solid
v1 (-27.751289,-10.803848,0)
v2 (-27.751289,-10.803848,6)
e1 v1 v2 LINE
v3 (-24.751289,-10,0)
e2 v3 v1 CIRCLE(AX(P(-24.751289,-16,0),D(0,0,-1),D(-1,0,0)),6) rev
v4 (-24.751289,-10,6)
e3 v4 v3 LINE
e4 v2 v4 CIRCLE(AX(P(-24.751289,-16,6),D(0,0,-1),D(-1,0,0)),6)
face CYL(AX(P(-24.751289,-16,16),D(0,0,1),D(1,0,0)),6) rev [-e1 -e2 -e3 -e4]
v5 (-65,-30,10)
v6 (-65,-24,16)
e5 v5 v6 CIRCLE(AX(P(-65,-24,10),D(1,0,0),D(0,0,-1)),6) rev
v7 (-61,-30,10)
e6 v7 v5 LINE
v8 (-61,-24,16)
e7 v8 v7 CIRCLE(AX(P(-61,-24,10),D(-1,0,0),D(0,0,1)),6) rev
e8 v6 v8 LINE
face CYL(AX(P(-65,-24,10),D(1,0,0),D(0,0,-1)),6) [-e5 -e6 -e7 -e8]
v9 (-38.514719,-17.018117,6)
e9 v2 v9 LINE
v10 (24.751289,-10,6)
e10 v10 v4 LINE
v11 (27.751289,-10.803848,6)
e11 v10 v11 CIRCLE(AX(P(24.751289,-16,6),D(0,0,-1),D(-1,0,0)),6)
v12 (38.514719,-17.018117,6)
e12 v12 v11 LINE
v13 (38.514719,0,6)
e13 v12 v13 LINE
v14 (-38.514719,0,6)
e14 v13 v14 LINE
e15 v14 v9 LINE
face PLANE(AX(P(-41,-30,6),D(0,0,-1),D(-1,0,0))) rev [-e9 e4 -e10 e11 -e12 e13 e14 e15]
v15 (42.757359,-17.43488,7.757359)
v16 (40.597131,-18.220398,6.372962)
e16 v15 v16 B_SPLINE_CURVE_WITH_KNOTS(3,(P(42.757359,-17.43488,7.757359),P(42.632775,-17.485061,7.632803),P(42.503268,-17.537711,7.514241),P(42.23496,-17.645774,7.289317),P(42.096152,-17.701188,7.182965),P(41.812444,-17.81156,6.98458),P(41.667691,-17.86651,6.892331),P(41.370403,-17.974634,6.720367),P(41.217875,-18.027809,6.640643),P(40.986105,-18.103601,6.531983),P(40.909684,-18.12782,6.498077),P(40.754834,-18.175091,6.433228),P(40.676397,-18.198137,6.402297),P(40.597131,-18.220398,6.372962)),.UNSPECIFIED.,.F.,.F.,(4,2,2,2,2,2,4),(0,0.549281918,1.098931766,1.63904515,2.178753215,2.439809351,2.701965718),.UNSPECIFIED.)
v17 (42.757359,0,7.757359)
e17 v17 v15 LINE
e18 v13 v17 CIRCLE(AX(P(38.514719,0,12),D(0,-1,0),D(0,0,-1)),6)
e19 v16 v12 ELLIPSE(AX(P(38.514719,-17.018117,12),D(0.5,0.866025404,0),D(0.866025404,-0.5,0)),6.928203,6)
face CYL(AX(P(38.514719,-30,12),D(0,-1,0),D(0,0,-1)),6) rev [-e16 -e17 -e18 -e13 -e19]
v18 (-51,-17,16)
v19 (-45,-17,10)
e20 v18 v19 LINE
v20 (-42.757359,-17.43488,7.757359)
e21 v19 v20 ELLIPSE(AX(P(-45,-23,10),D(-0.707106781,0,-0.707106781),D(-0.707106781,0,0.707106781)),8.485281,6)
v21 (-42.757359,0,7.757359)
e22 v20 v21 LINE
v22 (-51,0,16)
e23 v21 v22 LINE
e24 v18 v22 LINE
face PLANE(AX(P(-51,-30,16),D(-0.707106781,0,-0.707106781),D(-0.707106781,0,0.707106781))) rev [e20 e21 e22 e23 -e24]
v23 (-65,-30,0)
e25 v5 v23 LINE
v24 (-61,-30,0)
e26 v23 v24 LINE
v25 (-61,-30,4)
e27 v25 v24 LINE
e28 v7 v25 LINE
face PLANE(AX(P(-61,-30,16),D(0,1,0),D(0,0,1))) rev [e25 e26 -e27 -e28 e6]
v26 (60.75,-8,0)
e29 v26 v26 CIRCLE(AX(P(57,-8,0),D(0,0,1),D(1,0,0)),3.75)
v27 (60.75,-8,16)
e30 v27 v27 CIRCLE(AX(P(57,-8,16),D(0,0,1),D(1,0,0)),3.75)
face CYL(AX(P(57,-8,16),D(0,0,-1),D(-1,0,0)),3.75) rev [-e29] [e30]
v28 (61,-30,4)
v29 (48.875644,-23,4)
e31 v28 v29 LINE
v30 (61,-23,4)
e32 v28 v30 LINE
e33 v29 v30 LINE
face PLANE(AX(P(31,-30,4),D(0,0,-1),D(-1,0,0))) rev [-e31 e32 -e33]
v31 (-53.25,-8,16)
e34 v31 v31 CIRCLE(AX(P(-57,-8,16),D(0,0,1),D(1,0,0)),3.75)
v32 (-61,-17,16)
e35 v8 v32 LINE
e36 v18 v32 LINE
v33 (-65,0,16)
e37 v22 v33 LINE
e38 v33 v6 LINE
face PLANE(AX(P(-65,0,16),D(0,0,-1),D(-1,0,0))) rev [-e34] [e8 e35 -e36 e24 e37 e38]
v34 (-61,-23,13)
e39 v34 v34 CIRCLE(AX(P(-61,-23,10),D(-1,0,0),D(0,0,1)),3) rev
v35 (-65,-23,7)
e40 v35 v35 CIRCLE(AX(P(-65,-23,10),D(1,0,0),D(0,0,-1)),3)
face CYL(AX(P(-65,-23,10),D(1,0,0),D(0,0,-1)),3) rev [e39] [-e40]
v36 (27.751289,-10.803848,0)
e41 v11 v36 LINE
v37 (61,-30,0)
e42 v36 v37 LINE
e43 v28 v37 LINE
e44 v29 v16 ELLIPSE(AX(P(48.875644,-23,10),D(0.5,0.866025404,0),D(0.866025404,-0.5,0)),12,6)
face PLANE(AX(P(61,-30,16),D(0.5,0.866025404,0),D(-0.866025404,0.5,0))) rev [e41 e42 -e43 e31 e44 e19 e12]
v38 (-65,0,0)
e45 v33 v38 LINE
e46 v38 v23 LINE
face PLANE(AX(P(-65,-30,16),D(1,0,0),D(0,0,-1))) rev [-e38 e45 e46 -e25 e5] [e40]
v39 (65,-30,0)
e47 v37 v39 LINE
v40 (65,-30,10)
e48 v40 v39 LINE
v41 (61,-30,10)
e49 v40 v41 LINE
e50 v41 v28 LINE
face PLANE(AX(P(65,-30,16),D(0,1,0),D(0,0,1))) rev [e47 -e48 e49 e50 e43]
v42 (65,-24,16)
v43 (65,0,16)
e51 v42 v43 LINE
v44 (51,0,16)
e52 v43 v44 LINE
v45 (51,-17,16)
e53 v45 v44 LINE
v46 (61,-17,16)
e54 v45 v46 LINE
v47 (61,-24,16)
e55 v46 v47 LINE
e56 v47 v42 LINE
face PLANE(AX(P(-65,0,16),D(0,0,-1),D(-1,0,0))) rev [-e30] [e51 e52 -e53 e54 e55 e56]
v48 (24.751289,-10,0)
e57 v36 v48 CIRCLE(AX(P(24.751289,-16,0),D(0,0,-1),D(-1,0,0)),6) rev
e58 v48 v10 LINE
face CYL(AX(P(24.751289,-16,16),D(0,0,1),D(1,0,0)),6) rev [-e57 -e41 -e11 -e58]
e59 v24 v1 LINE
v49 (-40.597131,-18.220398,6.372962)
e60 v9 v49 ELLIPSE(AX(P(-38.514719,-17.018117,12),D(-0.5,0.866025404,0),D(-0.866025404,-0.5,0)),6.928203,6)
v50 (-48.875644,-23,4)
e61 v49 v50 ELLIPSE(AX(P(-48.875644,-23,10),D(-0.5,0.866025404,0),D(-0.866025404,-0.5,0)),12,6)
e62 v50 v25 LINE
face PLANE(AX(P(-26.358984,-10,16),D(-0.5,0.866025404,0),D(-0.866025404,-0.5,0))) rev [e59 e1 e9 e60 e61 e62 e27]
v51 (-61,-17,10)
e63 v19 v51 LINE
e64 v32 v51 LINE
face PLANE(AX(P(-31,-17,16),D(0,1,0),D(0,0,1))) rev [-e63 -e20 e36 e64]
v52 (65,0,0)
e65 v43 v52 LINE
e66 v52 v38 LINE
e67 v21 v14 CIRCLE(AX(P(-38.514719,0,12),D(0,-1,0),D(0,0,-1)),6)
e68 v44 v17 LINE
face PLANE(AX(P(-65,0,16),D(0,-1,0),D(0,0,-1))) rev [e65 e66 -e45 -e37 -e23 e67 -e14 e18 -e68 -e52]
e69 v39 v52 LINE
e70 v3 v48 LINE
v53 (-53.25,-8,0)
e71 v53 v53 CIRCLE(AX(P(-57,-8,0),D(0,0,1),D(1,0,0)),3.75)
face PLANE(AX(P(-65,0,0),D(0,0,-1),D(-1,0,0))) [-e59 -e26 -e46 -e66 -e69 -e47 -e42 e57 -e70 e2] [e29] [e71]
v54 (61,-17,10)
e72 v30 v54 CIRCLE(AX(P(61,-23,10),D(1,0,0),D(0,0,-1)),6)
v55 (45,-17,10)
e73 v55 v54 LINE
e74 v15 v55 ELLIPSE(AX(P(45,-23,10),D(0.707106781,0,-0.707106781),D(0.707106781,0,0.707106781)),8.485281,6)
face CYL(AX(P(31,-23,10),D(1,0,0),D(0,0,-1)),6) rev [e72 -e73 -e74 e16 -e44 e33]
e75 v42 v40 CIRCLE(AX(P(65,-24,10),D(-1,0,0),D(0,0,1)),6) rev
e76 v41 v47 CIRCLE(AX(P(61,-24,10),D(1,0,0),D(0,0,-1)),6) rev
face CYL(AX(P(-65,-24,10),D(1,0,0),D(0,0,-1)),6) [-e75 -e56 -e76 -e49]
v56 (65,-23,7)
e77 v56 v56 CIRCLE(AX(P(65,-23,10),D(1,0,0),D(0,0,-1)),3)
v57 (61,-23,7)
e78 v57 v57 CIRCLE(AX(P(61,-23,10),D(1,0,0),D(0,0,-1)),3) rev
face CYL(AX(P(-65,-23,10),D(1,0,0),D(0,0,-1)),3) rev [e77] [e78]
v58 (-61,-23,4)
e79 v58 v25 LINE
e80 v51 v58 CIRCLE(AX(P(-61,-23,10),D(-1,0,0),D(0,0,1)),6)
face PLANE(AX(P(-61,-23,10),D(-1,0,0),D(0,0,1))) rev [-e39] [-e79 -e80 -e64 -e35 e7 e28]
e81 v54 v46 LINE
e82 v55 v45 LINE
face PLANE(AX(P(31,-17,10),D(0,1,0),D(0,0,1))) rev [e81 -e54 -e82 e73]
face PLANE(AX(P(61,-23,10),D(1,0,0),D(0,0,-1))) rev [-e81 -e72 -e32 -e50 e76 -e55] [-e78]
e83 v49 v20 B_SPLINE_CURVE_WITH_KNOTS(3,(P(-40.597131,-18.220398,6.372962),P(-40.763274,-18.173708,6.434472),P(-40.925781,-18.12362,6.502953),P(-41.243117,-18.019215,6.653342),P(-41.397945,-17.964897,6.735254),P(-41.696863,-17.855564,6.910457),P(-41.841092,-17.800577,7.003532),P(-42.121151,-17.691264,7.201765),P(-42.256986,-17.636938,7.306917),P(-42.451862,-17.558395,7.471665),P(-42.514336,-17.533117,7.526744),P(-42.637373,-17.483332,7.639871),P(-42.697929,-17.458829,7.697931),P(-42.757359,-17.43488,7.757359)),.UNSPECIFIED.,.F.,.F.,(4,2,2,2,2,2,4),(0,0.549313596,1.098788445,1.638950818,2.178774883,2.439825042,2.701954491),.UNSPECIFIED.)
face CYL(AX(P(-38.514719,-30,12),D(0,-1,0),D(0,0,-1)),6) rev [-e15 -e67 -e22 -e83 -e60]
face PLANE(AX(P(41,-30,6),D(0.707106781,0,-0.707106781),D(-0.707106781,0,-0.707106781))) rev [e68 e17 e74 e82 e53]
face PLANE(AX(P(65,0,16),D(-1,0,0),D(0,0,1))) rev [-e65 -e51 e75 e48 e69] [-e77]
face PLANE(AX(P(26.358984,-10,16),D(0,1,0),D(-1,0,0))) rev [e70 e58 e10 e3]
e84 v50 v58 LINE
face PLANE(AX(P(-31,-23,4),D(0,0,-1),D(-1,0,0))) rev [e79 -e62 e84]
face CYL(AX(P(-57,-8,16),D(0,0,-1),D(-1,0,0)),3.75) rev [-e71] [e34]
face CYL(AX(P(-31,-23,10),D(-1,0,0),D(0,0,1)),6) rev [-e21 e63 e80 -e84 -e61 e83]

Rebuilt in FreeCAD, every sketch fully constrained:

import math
import FreeCAD as App
import Part
import Sketcher
from FreeCAD import Vector
Q = App.Units.Quantity


def edges_at(feature, points):
    """Names of the edges that pass closest to the given points."""
    edges = feature.Shape.Edges
    near = lambda p: min(range(len(edges)), key=lambda i: edges[i].distToShape(Part.Vertex(*p))[0])
    return sorted({f"Edge{near(p) + 1}" for p in points})


def add_polygon(sketch, points):
    """Adds a closed chain of lines whose ends are joined by coincident constraints."""
    first, n = sketch.GeometryCount, len(points)
    for a, b in zip(points, points[1:] + points[:1]):
        sketch.addGeometry(Part.LineSegment(App.Vector(*a, 0), App.Vector(*b, 0)), False)
    for i in range(n):
        sketch.addConstraint(Sketcher.Constraint("Coincident", first + i, 2, first + (i + 1) % n, 1))

doc = App.newDocument("Part")
params = doc.addObject("Spreadsheet::Sheet", "Params")
for row, (alias, value) in enumerate([
    ("sketch1_diameter", "7.5 mm"),
    ("sketch1_width", "130 mm"),
    ("sketch1_width2", "4 mm"),
    ("sketch1_height", "30 mm"),
    ("sketch1_length", "40 mm"),
    ("pad1_length", "16 mm"),
    ("sketch2_diameter", "6 mm"),
    ("sketch3_width", "102 mm"),
    ("sketch3_width2", "82 mm"),
    ("sketch4_radius", "6 mm"),
    ("sketch4_width", "7 mm"),
    ("sketch4_height", "12 mm"),
    ("pocket3_length", "30 mm"),
    ("sketch5_radius", "6 mm"),
    ("sketch5_width", "13 mm"),
    ("sketch5_height", "6 mm"),
    ("pocket4_length", "30 mm"),
    ("fillet_radius", "6 mm"),
], start=1):
    params.set(f"A{row}", alias)
    params.set(f"B{row}", "=" + value)
    params.setAlias(f"B{row}", alias)

body = doc.addObject("PartDesign::Body", "Body")

# Sketch on XY plane
sketch1 = body.newObject("Sketcher::SketchObject", "Sketch")
sketch1.AttachmentSupport = (doc.getObject("XY_Plane"), [""])
sketch1.MapMode = "FlatFace"
add_polygon(sketch1, [(65, 0), (-65, 0), (-65, -30), (-61, -30), (-26.358984, -10), (26.358984, -10), (61, -30), (65, -30)])  # lines 0-7
sketch1.addGeometry(Part.Circle(Vector(57, -8, 0), Vector(0, 0, 1), 3.75), False)  # 8
sketch1.addGeometry(Part.Circle(Vector(-57, -8, 0), Vector(0, 0, 1), 3.75), False)  # 9
sketch1.addConstraint([
    Sketcher.Constraint("Horizontal", 0),
    Sketcher.Constraint("Vertical", 1),
    Sketcher.Constraint("Horizontal", 2),
    Sketcher.Constraint("Horizontal", 4),
    Sketcher.Constraint("Horizontal", 6),
    Sketcher.Constraint("Vertical", 7),
    Sketcher.Constraint("Equal", 8, 9),
    Sketcher.Constraint("Symmetric", 0, 2, 7, 2, -1, 1),
    Sketcher.Constraint("Symmetric", 8, 3, 9, 3, -2),
    Sketcher.Constraint("Symmetric", 2, 2, 5, 2, -2),
    Sketcher.Constraint("Equal", 3, 5),
    Sketcher.Constraint("Diameter", 8, Q("7.5 mm")),
    Sketcher.Constraint("DistanceX", 0, 2, 0, 1, Q("130 mm")),
    Sketcher.Constraint("DistanceX", 2, 1, 2, 2, Q("4 mm")),
    Sketcher.Constraint("DistanceY", 1, 2, 1, 1, Q("30 mm")),
    Sketcher.Constraint("Angle", 3, Q("30 deg")),
    Sketcher.Constraint("Distance", 3, Q("40 mm")),
    Sketcher.Constraint("DistanceX", -1, 1, 8, 3, Q("57 mm")),
    Sketcher.Constraint("DistanceY", 8, 3, -1, 1, Q("8 mm")),
])
sketch1.setExpression("Constraints[19]", "Params.sketch1_diameter")
sketch1.setExpression("Constraints[20]", "Params.sketch1_width")
sketch1.setExpression("Constraints[21]", "Params.sketch1_width2")
sketch1.setExpression("Constraints[22]", "Params.sketch1_height")
sketch1.setExpression("Constraints[24]", "Params.sketch1_length")
pad1 = body.newObject("PartDesign::Pad", "Pad")
pad1.Profile = sketch1
pad1.setExpression("Length", "Params.pad1_length")

# Sketch on YZ plane
sketch2 = body.newObject("Sketcher::SketchObject", "Sketch001")
sketch2.AttachmentSupport = (doc.getObject("YZ_Plane"), [""])
sketch2.MapMode = "FlatFace"
sketch2.AttachmentOffset = App.Placement(Vector(0, 0, 65), App.Rotation())
sketch2.addGeometry(Part.Circle(Vector(-23, 10, 0), Vector(0, 0, 1), 3), False)
sketch2.addConstraint([
    Sketcher.Constraint("Diameter", 0, Q("6 mm")),
    Sketcher.Constraint("DistanceX", 0, 3, -1, 1, Q("23 mm")),
    Sketcher.Constraint("DistanceY", -1, 1, 0, 3, Q("10 mm")),
])
sketch2.setExpression("Constraints[0]", "Params.sketch2_diameter")
pocket1 = body.newObject("PartDesign::Pocket", "Pocket")
pocket1.Profile = sketch2
pocket1.Type = "ThroughAll"

# Sketch on XZ plane
sketch3 = body.newObject("Sketcher::SketchObject", "Sketch002")
sketch3.AttachmentSupport = (doc.getObject("XZ_Plane"), [""])
sketch3.MapMode = "FlatFace"
add_polygon(sketch3, [(-41, 6), (-51, 16), (51, 16), (41, 6)])  # lines 0-3
sketch3.addConstraint([
    Sketcher.Constraint("Horizontal", 1),
    Sketcher.Constraint("Horizontal", 3),
    Sketcher.Constraint("Perpendicular", 0, 2),
    Sketcher.Constraint("Equal", 0, 2),
    Sketcher.Constraint("DistanceX", 1, 1, 1, 2, Q("102 mm")),
    Sketcher.Constraint("DistanceX", 3, 2, 3, 1, Q("82 mm")),
    Sketcher.Constraint("DistanceX", 0, 2, -1, 1, Q("51 mm")),
    Sketcher.Constraint("DistanceY", -1, 1, 0, 2, Q("16 mm")),
])
sketch3.setExpression("Constraints[8]", "Params.sketch3_width")
sketch3.setExpression("Constraints[9]", "Params.sketch3_width2")
pocket2 = body.newObject("PartDesign::Pocket", "Pocket001")
pocket2.Profile = sketch3
pocket2.Type = "ThroughAll"
pocket2.Reversed = True

# Sketch on YZ plane
sketch4 = body.newObject("Sketcher::SketchObject", "Sketch003")
sketch4.AttachmentSupport = (doc.getObject("YZ_Plane"), [""])
sketch4.MapMode = "FlatFace"
sketch4.AttachmentOffset = App.Placement(Vector(0, 0, -61), App.Rotation())
sketch4.addGeometry([
    Part.LineSegment(Vector(-23, 4, 0), Vector(-30, 4, 0)),  # 0
    Part.LineSegment(Vector(-30, 4, 0), Vector(-30, 16, 0)),  # 1
    Part.LineSegment(Vector(-30, 16, 0), Vector(-17, 16, 0)),  # 2
    Part.LineSegment(Vector(-17, 16, 0), Vector(-17, 10, 0)),  # 3
    Part.ArcOfCircle(Part.Circle(Vector(-23, 10, 0), Vector(0, 0, 1), 6), math.radians(-90), math.radians(0)),  # 4
], False)
sketch4.addConstraint([
    Sketcher.Constraint("Coincident", 0, 2, 1, 1),
    Sketcher.Constraint("Coincident", 1, 2, 2, 1),
    Sketcher.Constraint("Coincident", 2, 2, 3, 1),
    Sketcher.Constraint("Tangent", 3, 2, 4, 2),
    Sketcher.Constraint("Tangent", 4, 1, 0, 1),
    Sketcher.Constraint("Horizontal", 0),
    Sketcher.Constraint("Vertical", 1),
    Sketcher.Constraint("Horizontal", 2),
    Sketcher.Constraint("Vertical", 3),
    Sketcher.Constraint("Radius", 4, Q("6 mm")),
    Sketcher.Constraint("DistanceX", 0, 2, 0, 1, Q("7 mm")),
    Sketcher.Constraint("DistanceY", 1, 1, 1, 2, Q("12 mm")),
    Sketcher.Constraint("DistanceX", 4, 3, -1, 1, Q("23 mm")),
    Sketcher.Constraint("DistanceY", -1, 1, 4, 3, Q("10 mm")),
])
sketch4.setExpression("Constraints[9]", "Params.sketch4_radius")
sketch4.setExpression("Constraints[10]", "Params.sketch4_width")
sketch4.setExpression("Constraints[11]", "Params.sketch4_height")
pocket3 = body.newObject("PartDesign::Pocket", "Pocket002")
pocket3.Profile = sketch4
pocket3.setExpression("Length", "Params.pocket3_length")
pocket3.Reversed = True

# Sketch on YZ plane
sketch5 = body.newObject("Sketcher::SketchObject", "Sketch004")
sketch5.AttachmentSupport = (doc.getObject("YZ_Plane"), [""])
sketch5.MapMode = "FlatFace"
sketch5.AttachmentOffset = App.Placement(Vector(0, 0, 61), App.Rotation())
sketch5.addGeometry([
    Part.LineSegment(Vector(-17, 10, 0), Vector(-17, 16, 0)),  # 0
    Part.LineSegment(Vector(-17, 16, 0), Vector(-30, 16, 0)),  # 1
    Part.LineSegment(Vector(-30, 16, 0), Vector(-30, 4, 0)),  # 2
    Part.LineSegment(Vector(-30, 4, 0), Vector(-23, 4, 0)),  # 3
    Part.ArcOfCircle(Part.Circle(Vector(-23, 10, 0), Vector(0, 0, 1), 6), math.radians(-90), math.radians(0)),  # 4
], False)
sketch5.addConstraint([
    Sketcher.Constraint("Coincident", 0, 2, 1, 1),
    Sketcher.Constraint("Coincident", 1, 2, 2, 1),
    Sketcher.Constraint("Coincident", 2, 2, 3, 1),
    Sketcher.Constraint("Tangent", 3, 2, 4, 1),
    Sketcher.Constraint("Tangent", 4, 2, 0, 1),
    Sketcher.Constraint("Vertical", 0),
    Sketcher.Constraint("Horizontal", 1),
    Sketcher.Constraint("Vertical", 2),
    Sketcher.Constraint("Horizontal", 3),
    Sketcher.Constraint("Radius", 4, Q("6 mm")),
    Sketcher.Constraint("DistanceX", 1, 2, 1, 1, Q("13 mm")),
    Sketcher.Constraint("DistanceY", 0, 1, 0, 2, Q("6 mm")),
    Sketcher.Constraint("DistanceX", 4, 3, -1, 1, Q("23 mm")),
    Sketcher.Constraint("DistanceY", -1, 1, 4, 3, Q("10 mm")),
])
sketch5.setExpression("Constraints[9]", "Params.sketch5_radius")
sketch5.setExpression("Constraints[10]", "Params.sketch5_width")
sketch5.setExpression("Constraints[11]", "Params.sketch5_height")
pocket4 = body.newObject("PartDesign::Pocket", "Pocket003")
pocket4.Profile = sketch5
pocket4.setExpression("Length", "Params.pocket4_length")
doc.recompute()

fillet = body.newObject("PartDesign::Fillet", "Fillet")
fillet.Base = (pocket4, edges_at(pocket4, [
    (41, -9.226, 6),
    (-41, -9.226, 6),
    (-26.359, -10, 3),
    (26.359, -10, 3),
    (63, -30, 16),
    (-63, -30, 16),
]))
fillet.setExpression("Radius", "Params.fillet_radius")

doc.recompute()
